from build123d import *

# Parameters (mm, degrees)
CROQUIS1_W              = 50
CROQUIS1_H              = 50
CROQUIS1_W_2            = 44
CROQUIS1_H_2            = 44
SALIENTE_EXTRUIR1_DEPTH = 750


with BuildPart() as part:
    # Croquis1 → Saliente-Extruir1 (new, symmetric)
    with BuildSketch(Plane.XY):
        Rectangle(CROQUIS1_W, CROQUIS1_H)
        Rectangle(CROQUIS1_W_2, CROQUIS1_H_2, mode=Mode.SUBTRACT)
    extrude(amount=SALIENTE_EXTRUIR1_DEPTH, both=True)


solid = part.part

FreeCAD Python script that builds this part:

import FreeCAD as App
import Part
import Sketcher
from FreeCAD import Vector
Q = App.Units.Quantity


def add_polygon(sketch, points):
    """Adds a closed chain of lines whose ends are joined by coincident constraints."""
    first, n = sketch.GeometryCount, len(points)
    for a, b in zip(points, points[1:] + points[:1]):
        sketch.addGeometry(Part.LineSegment(App.Vector(*a, 0), App.Vector(*b, 0)), False)
    for i in range(n):
        sketch.addConstraint(Sketcher.Constraint("Coincident", first + i, 2, first + (i + 1) % n, 1))

doc = App.newDocument("Part")
params = doc.addObject("Spreadsheet::Sheet", "Params")
for row, (alias, value) in enumerate([
    ("sketch1_width", "50 mm"),
    ("sketch1_width2", "44 mm"),
    ("pad1_length", "1500 mm"),
], start=1):
    params.set(f"A{row}", alias)
    params.set(f"B{row}", "=" + value)
    params.setAlias(f"B{row}", alias)

body = doc.addObject("PartDesign::Body", "Body")

# Sketch on XY plane
sketch1 = doc.addObject("Sketcher::SketchObject", "Sketch")
body.addObject(sketch1)
sketch1.AttachmentSupport = (doc.XY_Plane, [""])
sketch1.MapMode = "FlatFace"
add_polygon(sketch1, [(-25, 25), (-25, -25), (25, -25), (25, 25)])  # lines 0-3
add_polygon(sketch1, [(22, -22), (-22, -22), (-22, 22), (22, 22)])  # lines 4-7
sketch1.addConstraint([
    Sketcher.Constraint("Vertical", 0),
    Sketcher.Constraint("Horizontal", 1),
    Sketcher.Constraint("Vertical", 2),
    Sketcher.Constraint("Horizontal", 3),
    Sketcher.Constraint("Horizontal", 4),
    Sketcher.Constraint("Vertical", 5),
    Sketcher.Constraint("Horizontal", 6),
    Sketcher.Constraint("Vertical", 7),
    Sketcher.Constraint("Symmetric", 0, 2, 2, 2, -1, 1),
    Sketcher.Constraint("Symmetric", 4, 2, 6, 2, -1, 1),
    Sketcher.Constraint("Equal", 3, 0),
    Sketcher.Constraint("Equal", 6, 5),
    Sketcher.Constraint("DistanceX", 1, 1, 1, 2, Q("50 mm")),
    Sketcher.Constraint("DistanceX", 4, 2, 4, 1, Q("44 mm")),
])
sketch1.setExpression("Constraints[20]", "Params.sketch1_width")
sketch1.setExpression("Constraints[21]", "Params.sketch1_width2")
pad1 = doc.addObject("PartDesign::Pad", "Pad")
body.addObject(pad1)
pad1.Profile = sketch1
pad1.setExpression("Length", "Params.pad1_length")
pad1.Midplane = True

doc.recompute()
